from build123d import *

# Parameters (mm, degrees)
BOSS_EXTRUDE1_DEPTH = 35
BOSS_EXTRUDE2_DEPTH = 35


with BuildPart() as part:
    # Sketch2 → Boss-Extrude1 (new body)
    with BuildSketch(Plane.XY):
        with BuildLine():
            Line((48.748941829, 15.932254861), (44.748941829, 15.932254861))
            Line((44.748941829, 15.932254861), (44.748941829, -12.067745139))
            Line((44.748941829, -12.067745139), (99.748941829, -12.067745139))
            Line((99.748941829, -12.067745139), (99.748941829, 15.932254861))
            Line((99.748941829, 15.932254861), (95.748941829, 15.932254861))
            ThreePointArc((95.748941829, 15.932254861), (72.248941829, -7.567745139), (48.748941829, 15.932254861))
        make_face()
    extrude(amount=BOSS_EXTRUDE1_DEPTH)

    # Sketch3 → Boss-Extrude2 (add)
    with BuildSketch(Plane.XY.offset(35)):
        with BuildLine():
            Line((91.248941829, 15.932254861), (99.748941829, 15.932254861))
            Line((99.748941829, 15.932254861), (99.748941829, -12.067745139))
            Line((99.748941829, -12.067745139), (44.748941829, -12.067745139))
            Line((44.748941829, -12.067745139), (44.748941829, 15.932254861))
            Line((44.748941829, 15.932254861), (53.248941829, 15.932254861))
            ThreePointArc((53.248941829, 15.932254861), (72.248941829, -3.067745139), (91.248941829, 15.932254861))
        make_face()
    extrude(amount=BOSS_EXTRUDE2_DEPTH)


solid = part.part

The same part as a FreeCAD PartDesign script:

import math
import FreeCAD as App
import Part
import Sketcher

V = App.Vector
Q = App.Units.Quantity

doc = App.newDocument("Part")
body = doc.addObject("PartDesign::Body", "Body")

sketch1 = body.newObject("Sketcher::SketchObject", "Sketch")
sketch1.AttachmentSupport = (doc.getObject("XY_Plane"), [""])
sketch1.MapMode = "FlatFace"
sketch1.addGeometry([
    Part.LineSegment(V(48.7, 15.9, 0), V(44.7, 15.9, 0)),
    Part.LineSegment(V(44.7, 15.9, 0), V(44.7, -12.1, 0)),
    Part.LineSegment(V(44.7, -12.1, 0), V(99.7, -12.1, 0)),
    Part.LineSegment(V(99.7, -12.1, 0), V(99.7, 15.9, 0)),
    Part.LineSegment(V(99.7, 15.9, 0), V(95.7, 15.9, 0)),
    Part.ArcOfCircle(Part.Circle(V(72.2, 15.9, 0), V(0, 0, 1), 23.5), math.radians(180), math.radians(360)),
], False)
sketch1.addConstraint([
    Sketcher.Constraint("Coincident", 0, 2, 1, 1),
    Sketcher.Constraint("Coincident", 1, 2, 2, 1),
    Sketcher.Constraint("Coincident", 2, 2, 3, 1),
    Sketcher.Constraint("Coincident", 3, 2, 4, 1),
    Sketcher.Constraint("Coincident", 4, 2, 5, 2),
    Sketcher.Constraint("Coincident", 5, 1, 0, 1),
    Sketcher.Constraint("Horizontal", 0),
    Sketcher.Constraint("Vertical", 1),
    Sketcher.Constraint("Horizontal", 2),
    Sketcher.Constraint("Vertical", 3),
    Sketcher.Constraint("Horizontal", 4),
    Sketcher.Constraint("Horizontal", 5, 3, 0, 2),
    Sketcher.Constraint("Horizontal", 0, 2, 3, 2),
    Sketcher.Constraint("Equal", 0, 4),
    Sketcher.Constraint("Radius", 5, Q("23.5 mm")),
    Sketcher.Constraint("DistanceX", 0, 2, 0, 1, Q("4 mm")),
    Sketcher.Constraint("DistanceY", 1, 2, 1, 1, Q("28 mm")),
    Sketcher.Constraint("DistanceX", -1, 1, 5, 3, Q("72.248942 mm")),
    Sketcher.Constraint("DistanceY", -1, 1, 5, 3, Q("15.932255 mm")),
])
pad1 = body.newObject("PartDesign::Pad", "Pad")
pad1.Profile = sketch1
pad1.Length = 35

sketch2 = body.newObject("Sketcher::SketchObject", "Sketch001")
sketch2.AttachmentSupport = (doc.getObject("XY_Plane"), [""])
sketch2.MapMode = "FlatFace"
sketch2.AttachmentOffset = App.Placement(V(0, 0, 35), App.Rotation())
sketch2.addGeometry([
    Part.LineSegment(V(100, 16, 0), V(91, 16, 0)),
    Part.ArcOfCircle(Part.Circle(V(72, 16, 0), V(0, 0, 1), 19), math.radians(180), math.radians(360)),
    Part.LineSegment(V(53, 16, 0), V(45, 16, 0)),
    Part.LineSegment(V(45, 16, 0), V(45, -12, 0)),
    Part.LineSegment(V(45, -12, 0), V(100, -12, 0)),
    Part.LineSegment(V(100, -12, 0), V(100, 16, 0)),
], False)
sketch2.addConstraint([
    Sketcher.Constraint("Coincident", 0, 2, 1, 2),
    Sketcher.Constraint("Coincident", 1, 1, 2, 1),
    Sketcher.Constraint("Coincident", 2, 2, 3, 1),
    Sketcher.Constraint("Coincident", 3, 2, 4, 1),
    Sketcher.Constraint("Coincident", 4, 2, 5, 1),
    Sketcher.Constraint("Coincident", 5, 2, 0, 1),
    Sketcher.Constraint("Horizontal", 0),
    Sketcher.Constraint("Horizontal", 2),
    Sketcher.Constraint("Vertical", 3),
    Sketcher.Constraint("Horizontal", 4),
    Sketcher.Constraint("Vertical", 5),
    Sketcher.Constraint("Horizontal", 1, 3, 0, 2),
    Sketcher.Constraint("Horizontal", 0, 2, 1, 1),
    Sketcher.Constraint("Equal", 0, 2),
    Sketcher.Constraint("Radius", 1, Q("19 mm")),
    Sketcher.Constraint("DistanceX", 4, 1, 4, 2, Q("55 mm")),
    Sketcher.Constraint("DistanceY", 3, 2, 3, 1, Q("28 mm")),
    Sketcher.Constraint("DistanceX", -1, 1, 1, 3, Q("72.248942 mm")),
    Sketcher.Constraint("DistanceY", -1, 1, 1, 3, Q("15.932255 mm")),
])
pad2 = body.newObject("PartDesign::Pad", "Pad001")
pad2.Profile = sketch2
pad2.Length = 35

doc.recompute()
